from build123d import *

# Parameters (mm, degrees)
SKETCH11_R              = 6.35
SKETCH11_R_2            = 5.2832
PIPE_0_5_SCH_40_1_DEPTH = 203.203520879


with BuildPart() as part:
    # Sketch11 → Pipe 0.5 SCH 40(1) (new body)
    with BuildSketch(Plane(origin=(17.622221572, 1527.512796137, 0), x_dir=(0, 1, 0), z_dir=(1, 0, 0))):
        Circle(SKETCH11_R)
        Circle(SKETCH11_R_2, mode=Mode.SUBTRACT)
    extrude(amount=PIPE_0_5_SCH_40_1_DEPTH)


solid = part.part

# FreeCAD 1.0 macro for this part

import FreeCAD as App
import Part
import Sketcher

V = App.Vector
Q = App.Units.Quantity

doc = App.newDocument("Part")
body = doc.addObject("PartDesign::Body", "Body")

# Sketch on YZ plane
sketch1 = body.newObject("Sketcher::SketchObject", "Sketch")
sketch1.AttachmentSupport = (doc.getObject("YZ_Plane"), [""])
sketch1.MapMode = "FlatFace"
sketch1.AttachmentOffset = App.Placement(V(0, 0, 17.622222), App.Rotation())
sketch1.addGeometry([
    Part.Circle(V(1528, 0, 0), V(0, 0, 1), 6),
    Part.Circle(V(1528, 0, 0), V(0, 0, 1), 5),
], False)
sketch1.addConstraint([
    Sketcher.Constraint("Coincident", 1, 3, 0, 3),
    Sketcher.Constraint("PointOnObject", 0, 3, -1),
    Sketcher.Constraint("Diameter", 0, Q("0.5 in")),
    Sketcher.Constraint("Diameter", 1, Q("0.416 in")),
    Sketcher.Constraint("DistanceX", -1, 1, 0, 3, Q("1527.512796 mm")),
])
pad1 = body.newObject("PartDesign::Pad", "Pad")
pad1.Profile = sketch1
pad1.Length = 203.203521

doc.recompute()
